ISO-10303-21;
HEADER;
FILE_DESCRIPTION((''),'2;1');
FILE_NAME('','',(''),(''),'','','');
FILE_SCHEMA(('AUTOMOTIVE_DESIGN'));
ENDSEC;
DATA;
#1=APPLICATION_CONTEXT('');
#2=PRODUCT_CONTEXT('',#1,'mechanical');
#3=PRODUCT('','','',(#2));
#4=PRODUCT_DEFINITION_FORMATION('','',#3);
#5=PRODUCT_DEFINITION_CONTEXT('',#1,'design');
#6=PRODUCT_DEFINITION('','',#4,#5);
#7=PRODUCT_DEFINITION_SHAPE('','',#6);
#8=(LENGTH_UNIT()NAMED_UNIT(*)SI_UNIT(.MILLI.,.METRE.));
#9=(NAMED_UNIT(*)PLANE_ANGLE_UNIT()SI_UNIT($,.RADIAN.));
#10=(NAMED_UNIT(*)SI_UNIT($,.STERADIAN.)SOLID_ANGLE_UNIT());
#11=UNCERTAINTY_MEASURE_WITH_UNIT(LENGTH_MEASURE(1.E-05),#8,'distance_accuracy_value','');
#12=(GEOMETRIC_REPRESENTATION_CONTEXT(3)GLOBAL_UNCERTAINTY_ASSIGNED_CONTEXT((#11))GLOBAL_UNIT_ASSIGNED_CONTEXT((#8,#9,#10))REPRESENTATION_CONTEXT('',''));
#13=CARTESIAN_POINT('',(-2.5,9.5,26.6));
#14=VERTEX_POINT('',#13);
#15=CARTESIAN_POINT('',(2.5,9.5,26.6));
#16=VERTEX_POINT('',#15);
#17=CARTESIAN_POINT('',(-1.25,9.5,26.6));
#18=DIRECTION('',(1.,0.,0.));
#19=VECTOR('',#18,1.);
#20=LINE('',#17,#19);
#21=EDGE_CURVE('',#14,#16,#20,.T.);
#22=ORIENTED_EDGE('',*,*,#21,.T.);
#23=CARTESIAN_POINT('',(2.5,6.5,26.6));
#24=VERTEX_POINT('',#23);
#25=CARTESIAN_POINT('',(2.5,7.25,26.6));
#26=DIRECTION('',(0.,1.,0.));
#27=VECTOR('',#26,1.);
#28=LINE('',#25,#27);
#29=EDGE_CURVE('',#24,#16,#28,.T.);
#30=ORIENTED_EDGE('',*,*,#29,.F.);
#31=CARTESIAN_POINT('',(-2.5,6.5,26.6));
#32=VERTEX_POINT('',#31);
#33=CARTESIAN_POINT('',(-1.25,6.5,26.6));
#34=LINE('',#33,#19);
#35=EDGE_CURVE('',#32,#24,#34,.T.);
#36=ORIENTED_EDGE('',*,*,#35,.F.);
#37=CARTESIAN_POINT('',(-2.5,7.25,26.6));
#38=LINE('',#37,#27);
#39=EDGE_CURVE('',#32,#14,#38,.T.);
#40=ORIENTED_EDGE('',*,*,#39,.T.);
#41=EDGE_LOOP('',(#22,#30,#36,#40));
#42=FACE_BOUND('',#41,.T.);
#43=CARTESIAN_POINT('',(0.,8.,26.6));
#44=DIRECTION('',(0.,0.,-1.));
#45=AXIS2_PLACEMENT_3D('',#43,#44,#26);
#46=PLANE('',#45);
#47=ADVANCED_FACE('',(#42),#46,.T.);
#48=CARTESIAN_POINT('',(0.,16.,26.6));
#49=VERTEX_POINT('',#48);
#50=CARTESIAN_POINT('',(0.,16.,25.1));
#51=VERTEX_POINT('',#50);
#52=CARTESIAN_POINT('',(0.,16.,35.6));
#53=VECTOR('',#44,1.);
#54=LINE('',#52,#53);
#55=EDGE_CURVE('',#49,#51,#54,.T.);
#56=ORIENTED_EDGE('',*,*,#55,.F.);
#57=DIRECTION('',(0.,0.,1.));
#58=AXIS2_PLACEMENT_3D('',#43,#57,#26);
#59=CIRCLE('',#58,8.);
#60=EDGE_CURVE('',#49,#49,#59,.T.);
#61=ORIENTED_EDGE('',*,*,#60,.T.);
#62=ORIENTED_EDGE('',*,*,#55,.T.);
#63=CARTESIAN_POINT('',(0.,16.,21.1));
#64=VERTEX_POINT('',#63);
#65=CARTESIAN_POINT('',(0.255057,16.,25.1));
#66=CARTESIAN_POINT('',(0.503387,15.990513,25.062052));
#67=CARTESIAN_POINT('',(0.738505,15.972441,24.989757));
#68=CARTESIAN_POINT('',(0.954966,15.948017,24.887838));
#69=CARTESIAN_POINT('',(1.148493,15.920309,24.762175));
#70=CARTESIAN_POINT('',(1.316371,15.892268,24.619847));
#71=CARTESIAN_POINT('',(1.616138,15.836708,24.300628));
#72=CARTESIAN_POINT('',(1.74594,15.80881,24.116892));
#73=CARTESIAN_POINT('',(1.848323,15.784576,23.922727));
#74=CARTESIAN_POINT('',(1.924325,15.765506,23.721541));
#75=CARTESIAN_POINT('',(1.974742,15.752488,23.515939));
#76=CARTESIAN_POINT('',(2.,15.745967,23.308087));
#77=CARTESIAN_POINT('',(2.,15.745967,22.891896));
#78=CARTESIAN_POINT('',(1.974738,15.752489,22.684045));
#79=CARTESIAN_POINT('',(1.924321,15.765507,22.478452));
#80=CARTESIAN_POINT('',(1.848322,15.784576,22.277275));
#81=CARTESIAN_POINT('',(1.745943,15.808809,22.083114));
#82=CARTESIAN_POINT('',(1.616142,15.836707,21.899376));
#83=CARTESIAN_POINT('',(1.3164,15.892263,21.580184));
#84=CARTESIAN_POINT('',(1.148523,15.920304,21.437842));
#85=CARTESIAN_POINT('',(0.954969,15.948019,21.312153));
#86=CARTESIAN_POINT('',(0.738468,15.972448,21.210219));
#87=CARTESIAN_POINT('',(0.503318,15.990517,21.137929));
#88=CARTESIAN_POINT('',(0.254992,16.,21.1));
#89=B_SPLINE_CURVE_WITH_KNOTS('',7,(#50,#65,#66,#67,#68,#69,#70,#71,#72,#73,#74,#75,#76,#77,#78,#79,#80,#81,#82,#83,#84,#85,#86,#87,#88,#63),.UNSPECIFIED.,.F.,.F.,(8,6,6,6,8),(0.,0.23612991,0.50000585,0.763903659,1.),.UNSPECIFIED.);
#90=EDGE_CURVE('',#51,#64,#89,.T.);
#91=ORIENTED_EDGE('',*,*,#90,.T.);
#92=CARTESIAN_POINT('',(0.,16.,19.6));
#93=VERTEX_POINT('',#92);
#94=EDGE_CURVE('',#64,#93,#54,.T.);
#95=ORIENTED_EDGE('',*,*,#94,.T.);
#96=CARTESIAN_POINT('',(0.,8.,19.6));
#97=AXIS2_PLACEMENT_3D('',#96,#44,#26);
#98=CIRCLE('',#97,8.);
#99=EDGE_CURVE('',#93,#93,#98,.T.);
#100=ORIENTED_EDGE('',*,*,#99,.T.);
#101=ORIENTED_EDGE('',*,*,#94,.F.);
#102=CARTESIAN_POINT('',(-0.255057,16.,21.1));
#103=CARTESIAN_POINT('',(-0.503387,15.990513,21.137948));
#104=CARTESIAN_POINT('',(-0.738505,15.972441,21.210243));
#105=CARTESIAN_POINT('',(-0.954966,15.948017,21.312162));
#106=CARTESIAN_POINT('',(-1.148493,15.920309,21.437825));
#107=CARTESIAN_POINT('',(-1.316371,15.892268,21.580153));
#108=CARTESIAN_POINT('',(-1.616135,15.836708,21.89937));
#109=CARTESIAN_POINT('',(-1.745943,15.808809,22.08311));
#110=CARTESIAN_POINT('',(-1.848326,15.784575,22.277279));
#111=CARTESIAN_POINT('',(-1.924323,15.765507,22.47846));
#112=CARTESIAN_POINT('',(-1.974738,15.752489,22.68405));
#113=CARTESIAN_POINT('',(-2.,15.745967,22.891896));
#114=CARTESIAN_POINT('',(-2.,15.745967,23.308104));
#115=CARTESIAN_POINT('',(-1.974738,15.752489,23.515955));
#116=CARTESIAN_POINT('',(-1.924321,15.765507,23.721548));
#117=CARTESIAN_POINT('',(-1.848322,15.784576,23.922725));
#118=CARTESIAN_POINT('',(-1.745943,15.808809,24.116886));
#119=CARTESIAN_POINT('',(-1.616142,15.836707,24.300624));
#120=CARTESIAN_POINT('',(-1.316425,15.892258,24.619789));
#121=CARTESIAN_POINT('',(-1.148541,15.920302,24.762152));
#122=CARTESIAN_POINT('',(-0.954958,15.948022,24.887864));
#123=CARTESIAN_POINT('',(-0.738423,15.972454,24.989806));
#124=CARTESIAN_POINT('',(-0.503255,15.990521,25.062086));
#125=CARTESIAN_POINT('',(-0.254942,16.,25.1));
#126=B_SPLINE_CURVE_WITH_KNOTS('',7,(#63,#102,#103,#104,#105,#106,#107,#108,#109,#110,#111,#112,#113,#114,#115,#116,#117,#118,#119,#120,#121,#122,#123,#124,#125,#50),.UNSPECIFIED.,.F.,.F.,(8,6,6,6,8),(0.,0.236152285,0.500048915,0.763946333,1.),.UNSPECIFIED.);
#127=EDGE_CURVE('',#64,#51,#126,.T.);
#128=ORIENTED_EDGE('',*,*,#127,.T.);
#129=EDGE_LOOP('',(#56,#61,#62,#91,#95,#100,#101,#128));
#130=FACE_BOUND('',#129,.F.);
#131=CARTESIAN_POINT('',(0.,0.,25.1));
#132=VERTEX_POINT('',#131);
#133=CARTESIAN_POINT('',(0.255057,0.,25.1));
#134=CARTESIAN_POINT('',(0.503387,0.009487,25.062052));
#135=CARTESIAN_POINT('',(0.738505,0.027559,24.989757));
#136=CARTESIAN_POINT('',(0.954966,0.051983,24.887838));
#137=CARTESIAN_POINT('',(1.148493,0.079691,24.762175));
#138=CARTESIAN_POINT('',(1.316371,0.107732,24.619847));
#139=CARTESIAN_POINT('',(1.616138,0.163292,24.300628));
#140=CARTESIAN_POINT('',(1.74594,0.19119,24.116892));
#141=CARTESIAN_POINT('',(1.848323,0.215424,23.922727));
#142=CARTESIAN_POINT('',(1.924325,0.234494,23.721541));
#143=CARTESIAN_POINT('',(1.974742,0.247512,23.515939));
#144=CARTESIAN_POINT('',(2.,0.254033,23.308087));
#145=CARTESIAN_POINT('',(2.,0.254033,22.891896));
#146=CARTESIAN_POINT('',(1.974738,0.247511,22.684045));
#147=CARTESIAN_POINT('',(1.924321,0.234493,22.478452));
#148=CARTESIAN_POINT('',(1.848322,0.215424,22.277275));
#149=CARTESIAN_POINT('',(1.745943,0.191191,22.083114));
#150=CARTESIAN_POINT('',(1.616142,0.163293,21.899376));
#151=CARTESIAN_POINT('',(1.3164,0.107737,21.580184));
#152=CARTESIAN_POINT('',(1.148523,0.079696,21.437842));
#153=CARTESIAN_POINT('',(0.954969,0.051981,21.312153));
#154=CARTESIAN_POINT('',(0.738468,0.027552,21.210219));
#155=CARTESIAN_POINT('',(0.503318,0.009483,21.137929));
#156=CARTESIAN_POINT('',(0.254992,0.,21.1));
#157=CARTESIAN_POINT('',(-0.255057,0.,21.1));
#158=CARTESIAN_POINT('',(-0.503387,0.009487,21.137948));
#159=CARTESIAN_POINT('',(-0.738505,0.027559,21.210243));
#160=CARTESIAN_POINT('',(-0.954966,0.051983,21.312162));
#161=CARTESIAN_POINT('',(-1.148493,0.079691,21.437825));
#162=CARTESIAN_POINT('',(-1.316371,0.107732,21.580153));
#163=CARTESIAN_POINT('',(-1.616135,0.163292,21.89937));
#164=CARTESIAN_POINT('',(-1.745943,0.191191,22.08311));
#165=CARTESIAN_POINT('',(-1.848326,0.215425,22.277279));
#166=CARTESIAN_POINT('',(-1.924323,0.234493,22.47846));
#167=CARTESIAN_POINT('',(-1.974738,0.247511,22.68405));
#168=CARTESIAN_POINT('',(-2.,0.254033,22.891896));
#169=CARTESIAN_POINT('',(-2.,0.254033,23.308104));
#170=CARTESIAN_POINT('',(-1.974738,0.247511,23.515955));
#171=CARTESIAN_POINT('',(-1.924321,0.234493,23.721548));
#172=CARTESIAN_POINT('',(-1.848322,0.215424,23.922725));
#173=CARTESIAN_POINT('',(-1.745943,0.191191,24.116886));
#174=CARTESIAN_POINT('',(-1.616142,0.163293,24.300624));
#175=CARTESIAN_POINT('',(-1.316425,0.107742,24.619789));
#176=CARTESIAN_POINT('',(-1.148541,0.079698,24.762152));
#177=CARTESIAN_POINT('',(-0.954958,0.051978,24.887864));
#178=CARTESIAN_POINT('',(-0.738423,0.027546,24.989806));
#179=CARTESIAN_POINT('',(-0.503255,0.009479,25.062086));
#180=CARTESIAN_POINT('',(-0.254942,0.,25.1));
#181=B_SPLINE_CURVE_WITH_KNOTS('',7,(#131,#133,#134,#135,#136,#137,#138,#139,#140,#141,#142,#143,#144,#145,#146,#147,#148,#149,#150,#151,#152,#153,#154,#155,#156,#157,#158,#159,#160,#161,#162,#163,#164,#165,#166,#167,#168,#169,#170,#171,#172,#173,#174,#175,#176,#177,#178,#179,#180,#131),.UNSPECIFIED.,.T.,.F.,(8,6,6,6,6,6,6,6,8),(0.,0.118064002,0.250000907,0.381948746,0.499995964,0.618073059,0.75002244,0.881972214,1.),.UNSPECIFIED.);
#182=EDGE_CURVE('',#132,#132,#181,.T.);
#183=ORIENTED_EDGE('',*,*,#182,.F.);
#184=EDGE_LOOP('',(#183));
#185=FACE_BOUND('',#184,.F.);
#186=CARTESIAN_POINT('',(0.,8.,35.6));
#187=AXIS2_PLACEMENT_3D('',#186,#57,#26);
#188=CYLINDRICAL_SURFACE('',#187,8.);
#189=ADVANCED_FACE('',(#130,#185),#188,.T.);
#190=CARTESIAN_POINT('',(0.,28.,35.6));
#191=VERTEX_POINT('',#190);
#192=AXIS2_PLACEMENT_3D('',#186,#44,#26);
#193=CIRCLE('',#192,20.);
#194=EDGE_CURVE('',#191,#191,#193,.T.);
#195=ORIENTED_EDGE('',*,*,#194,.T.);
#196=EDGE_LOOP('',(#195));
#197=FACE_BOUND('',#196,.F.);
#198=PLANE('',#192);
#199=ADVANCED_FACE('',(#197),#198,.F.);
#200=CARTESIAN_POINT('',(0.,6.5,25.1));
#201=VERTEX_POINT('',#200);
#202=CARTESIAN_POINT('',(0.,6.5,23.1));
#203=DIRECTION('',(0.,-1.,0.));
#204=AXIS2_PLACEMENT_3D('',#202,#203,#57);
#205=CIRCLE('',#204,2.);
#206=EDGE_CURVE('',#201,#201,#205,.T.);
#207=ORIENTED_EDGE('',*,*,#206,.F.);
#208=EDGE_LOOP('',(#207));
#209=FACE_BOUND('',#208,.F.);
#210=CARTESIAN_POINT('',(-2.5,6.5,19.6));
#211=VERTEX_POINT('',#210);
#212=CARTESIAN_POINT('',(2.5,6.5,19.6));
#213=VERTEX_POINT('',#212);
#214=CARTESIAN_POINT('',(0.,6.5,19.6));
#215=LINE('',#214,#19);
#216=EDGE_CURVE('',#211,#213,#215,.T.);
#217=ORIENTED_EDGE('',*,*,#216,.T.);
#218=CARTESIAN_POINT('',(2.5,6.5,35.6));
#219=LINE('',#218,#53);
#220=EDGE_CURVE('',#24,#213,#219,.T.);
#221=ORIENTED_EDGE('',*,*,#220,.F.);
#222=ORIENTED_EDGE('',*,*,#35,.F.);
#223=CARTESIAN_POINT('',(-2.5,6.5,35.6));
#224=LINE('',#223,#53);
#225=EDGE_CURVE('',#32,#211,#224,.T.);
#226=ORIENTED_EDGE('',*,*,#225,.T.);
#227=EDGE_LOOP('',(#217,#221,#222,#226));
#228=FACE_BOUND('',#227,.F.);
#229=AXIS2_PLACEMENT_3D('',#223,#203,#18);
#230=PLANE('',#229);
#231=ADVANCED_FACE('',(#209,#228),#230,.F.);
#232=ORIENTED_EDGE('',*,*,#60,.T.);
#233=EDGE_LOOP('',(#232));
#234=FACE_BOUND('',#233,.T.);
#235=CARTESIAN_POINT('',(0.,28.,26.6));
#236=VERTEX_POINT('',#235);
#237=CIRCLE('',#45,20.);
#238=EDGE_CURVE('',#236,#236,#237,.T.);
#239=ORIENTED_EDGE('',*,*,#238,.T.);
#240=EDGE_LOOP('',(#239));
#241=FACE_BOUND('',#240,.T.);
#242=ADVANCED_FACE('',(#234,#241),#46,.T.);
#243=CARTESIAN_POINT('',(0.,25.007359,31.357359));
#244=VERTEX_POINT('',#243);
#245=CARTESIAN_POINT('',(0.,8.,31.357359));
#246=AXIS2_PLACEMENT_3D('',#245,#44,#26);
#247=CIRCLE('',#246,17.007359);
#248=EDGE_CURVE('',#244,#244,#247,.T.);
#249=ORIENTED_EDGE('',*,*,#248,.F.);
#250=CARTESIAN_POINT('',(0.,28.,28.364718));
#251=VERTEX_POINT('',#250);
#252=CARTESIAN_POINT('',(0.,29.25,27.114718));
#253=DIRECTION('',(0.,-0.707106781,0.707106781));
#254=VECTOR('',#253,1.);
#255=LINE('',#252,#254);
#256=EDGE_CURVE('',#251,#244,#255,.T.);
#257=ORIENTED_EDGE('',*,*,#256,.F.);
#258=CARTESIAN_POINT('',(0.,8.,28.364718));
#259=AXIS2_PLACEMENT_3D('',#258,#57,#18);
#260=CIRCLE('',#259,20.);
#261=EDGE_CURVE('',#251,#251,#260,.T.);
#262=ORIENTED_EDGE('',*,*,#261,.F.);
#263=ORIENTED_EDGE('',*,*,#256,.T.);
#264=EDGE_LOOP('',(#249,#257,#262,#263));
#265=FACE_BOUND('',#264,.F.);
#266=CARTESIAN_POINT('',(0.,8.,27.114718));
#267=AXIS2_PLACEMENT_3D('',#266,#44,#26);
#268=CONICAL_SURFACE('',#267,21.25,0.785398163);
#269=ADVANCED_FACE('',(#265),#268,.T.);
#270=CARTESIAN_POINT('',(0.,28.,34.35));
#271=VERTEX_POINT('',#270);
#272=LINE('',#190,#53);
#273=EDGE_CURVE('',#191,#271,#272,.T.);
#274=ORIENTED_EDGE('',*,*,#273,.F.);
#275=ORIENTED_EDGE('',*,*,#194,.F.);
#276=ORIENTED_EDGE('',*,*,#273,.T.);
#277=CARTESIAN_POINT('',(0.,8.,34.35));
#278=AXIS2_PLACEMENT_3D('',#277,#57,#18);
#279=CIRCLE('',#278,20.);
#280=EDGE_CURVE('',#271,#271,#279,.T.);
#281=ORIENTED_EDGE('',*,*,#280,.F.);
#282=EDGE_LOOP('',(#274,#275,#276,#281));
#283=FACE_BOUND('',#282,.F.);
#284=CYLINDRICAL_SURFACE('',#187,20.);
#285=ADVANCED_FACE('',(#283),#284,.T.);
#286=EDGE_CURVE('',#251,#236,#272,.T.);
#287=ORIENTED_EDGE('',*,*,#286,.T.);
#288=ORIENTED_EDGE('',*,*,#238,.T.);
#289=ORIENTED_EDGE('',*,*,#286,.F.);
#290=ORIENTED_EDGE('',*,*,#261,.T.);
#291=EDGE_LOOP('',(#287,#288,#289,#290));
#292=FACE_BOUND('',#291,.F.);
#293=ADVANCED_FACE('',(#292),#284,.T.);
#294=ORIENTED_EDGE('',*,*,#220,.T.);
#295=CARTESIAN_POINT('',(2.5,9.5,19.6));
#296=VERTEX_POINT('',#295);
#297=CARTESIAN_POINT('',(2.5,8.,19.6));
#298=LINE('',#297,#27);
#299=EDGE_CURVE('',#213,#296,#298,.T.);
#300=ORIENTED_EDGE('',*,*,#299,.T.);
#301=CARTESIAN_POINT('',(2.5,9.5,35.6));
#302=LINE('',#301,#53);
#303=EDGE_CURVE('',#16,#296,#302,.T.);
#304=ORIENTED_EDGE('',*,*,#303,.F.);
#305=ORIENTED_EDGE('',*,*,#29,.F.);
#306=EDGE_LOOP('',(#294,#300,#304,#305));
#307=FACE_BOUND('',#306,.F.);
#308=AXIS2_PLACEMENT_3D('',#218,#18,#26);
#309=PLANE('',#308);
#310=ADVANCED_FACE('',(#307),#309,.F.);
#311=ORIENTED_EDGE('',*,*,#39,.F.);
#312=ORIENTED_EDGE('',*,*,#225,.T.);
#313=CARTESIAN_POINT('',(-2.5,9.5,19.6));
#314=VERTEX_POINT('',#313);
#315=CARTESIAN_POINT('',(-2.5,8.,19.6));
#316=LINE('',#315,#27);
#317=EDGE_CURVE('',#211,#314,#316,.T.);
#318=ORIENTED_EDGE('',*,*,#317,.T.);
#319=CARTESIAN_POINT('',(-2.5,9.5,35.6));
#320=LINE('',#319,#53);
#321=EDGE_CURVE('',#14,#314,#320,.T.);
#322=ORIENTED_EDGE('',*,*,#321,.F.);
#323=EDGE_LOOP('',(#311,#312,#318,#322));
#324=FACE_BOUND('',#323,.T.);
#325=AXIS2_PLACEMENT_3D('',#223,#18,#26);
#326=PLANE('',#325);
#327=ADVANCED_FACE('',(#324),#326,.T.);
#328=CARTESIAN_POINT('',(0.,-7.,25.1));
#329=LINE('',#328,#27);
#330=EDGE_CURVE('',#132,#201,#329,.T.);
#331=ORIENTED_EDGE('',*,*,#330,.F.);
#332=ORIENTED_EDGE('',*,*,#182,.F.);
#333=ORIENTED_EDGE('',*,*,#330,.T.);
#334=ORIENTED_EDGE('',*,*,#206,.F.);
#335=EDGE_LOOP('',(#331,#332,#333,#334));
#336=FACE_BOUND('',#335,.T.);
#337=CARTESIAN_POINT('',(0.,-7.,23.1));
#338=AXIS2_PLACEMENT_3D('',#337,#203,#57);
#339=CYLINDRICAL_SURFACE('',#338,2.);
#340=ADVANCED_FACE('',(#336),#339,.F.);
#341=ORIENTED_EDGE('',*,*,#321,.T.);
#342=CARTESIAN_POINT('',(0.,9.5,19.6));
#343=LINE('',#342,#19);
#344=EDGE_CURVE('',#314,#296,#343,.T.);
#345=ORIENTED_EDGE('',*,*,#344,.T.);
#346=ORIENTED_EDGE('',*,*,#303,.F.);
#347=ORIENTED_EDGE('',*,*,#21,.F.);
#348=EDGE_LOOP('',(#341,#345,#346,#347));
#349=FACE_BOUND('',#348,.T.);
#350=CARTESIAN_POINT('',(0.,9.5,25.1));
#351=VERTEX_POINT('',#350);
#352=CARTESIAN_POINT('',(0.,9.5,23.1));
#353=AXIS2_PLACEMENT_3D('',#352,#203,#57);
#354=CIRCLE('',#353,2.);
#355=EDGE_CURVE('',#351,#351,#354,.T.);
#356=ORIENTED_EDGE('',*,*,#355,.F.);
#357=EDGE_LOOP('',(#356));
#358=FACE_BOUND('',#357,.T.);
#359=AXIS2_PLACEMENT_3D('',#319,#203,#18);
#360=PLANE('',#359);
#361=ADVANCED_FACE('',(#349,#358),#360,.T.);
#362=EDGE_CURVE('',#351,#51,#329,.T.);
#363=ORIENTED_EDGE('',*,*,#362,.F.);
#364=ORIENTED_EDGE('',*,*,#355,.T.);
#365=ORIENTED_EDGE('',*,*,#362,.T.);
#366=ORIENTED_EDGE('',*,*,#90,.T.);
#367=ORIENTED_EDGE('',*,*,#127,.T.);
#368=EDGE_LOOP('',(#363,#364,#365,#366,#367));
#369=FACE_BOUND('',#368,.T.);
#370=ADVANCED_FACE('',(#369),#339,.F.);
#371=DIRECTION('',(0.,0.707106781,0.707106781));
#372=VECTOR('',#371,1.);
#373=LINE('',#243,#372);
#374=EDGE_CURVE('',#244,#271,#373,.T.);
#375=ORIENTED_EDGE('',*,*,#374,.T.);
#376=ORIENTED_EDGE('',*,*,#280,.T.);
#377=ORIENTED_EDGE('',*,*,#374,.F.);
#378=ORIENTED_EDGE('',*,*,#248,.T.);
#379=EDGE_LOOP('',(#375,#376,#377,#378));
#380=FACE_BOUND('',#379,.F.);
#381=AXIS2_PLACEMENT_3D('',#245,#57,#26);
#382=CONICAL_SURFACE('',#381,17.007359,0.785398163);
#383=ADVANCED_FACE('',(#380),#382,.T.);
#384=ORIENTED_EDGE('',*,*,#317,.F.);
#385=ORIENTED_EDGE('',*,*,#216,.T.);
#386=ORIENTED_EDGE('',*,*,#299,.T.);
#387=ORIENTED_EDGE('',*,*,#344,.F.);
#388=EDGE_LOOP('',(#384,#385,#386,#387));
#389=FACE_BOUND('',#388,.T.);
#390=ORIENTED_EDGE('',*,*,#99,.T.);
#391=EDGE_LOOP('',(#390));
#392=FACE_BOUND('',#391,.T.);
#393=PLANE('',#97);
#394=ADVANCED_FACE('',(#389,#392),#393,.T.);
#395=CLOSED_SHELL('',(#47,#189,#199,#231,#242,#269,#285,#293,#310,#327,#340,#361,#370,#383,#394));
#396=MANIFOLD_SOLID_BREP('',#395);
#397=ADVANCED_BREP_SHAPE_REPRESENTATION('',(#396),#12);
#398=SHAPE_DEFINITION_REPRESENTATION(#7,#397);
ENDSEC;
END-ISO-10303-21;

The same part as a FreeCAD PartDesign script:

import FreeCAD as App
import Part
import Sketcher

V = App.Vector
Q = App.Units.Quantity


def add_polygon(sketch, points):
    """Adds a closed chain of lines whose ends are joined by coincident constraints."""
    first, n = sketch.GeometryCount, len(points)
    for a, b in zip(points, points[1:] + points[:1]):
        sketch.addGeometry(Part.LineSegment(App.Vector(*a, 0), App.Vector(*b, 0)), False)
    for i in range(n):
        sketch.addConstraint(Sketcher.Constraint("Coincident", first + i, 2, first + (i + 1) % n, 1))

doc = App.newDocument("Part")
body = doc.addObject("PartDesign::Body", "Body")

# Sketch on XY plane
sketch1 = doc.addObject("Sketcher::SketchObject", "Sketch")
body.addObject(sketch1)
sketch1.AttachmentSupport = (doc.XY_Plane, [""])
sketch1.MapMode = "FlatFace"
sketch1.addGeometry(Part.Circle(V(0, 0, 0), V(0, 0, 1), 2), False)
sketch1.addConstraint([
    Sketcher.Constraint("Coincident", 0, 3, -1, 1),
    Sketcher.Constraint("Diameter", 0, Q("4 mm")),
])
pad1 = doc.addObject("PartDesign::Pad", "Pad")
body.addObject(pad1)
pad1.Profile = sketch1
pad1.Length = 30
body2 = doc.addObject("PartDesign::Body", "Body001")
doc.recompute()

body.Placement = App.Placement(V(0, 0, 0), App.Rotation(V(0, 1, 0), 90))
boolean = doc.addObject("PartDesign::Boolean", "Boolean")
body2.addObject(boolean)
boolean.Type = "Fuse"
boolean.addObjects([body])
body3 = doc.addObject("PartDesign::Body", "Body002")
doc.recompute()

body2.Placement = App.Placement(V(-15, 0, 12.5), App.Rotation(V(0, 0, 1), 0))
boolean2 = doc.addObject("PartDesign::Boolean", "Boolean001")
body3.addObject(boolean2)
boolean2.Type = "Fuse"
boolean2.addObjects([body2])
body4 = doc.addObject("PartDesign::Body", "Body003")

# Sketch on XY plane
sketch2 = doc.addObject("Sketcher::SketchObject", "Sketch001")
body4.addObject(sketch2)
sketch2.AttachmentSupport = (doc.getObject("XY_Plane003"), [""])
sketch2.MapMode = "FlatFace"
add_polygon(sketch2, [(17, 4), (21, 0), (25, 4), (21, 8)])  # lines 0-3
sketch2.addConstraint([
    Sketcher.Constraint("PointOnObject", 0, 2, -1),
    Sketcher.Constraint("Perpendicular", 0, 1),
    Sketcher.Constraint("Perpendicular", 1, 2),
    Sketcher.Constraint("Perpendicular", 2, 3),
    Sketcher.Constraint("Horizontal", 1, 2, 3, 2),
    Sketcher.Constraint("Vertical", 0, 2, 2, 2),
    Sketcher.Constraint("Distance", 0, Q("6 mm")),
    Sketcher.Constraint("DistanceX", -1, 1, 0, 2, Q("21.25 mm")),
])
revolution = doc.addObject("PartDesign::Revolution", "Revolution")
body4.addObject(revolution)
revolution.Profile = sketch2
revolution.ReferenceAxis = (sketch2, ["V_Axis"])
revolution.Angle = 360
body5 = doc.addObject("PartDesign::Body", "Body004")
doc.recompute()

body4.Placement = App.Placement(V(0, 0, 0), App.Rotation(V(1, 0, 0), 90))
boolean3 = doc.addObject("PartDesign::Boolean", "Boolean002")
body5.addObject(boolean3)
boolean3.Type = "Fuse"
boolean3.addObjects([body4])
body6 = doc.addObject("PartDesign::Body", "Body005")

# Sketch on XY plane
sketch3 = doc.addObject("Sketcher::SketchObject", "Sketch002")
body6.addObject(sketch3)
sketch3.AttachmentSupport = (doc.getObject("XY_Plane005"), [""])
sketch3.MapMode = "FlatFace"
sketch3.addGeometry(Part.Circle(V(0, 0, 0), V(0, 0, 1), 20), False)
sketch3.addConstraint([
    Sketcher.Constraint("Coincident", 0, 3, -1, 1),
    Sketcher.Constraint("Diameter", 0, Q("40 mm")),
])
pad2 = doc.addObject("PartDesign::Pad", "Pad001")
body6.addObject(pad2)
pad2.Profile = sketch3
pad2.Length = 9
body7 = doc.addObject("PartDesign::Body", "Body006")

# Sketch on XY plane
sketch4 = doc.addObject("Sketcher::SketchObject", "Sketch003")
body7.addObject(sketch4)
sketch4.AttachmentSupport = (doc.getObject("XY_Plane006"), [""])
sketch4.MapMode = "FlatFace"
add_polygon(sketch4, [(-1.5, 2.5), (-1.5, -2.5), (1.5, -2.5), (1.5, 2.5)])  # lines 0-3
sketch4.addConstraint([
    Sketcher.Constraint("Vertical", 0),
    Sketcher.Constraint("Horizontal", 1),
    Sketcher.Constraint("Vertical", 2),
    Sketcher.Constraint("Horizontal", 3),
    Sketcher.Constraint("Symmetric", 0, 2, 2, 2, -1, 1),
    Sketcher.Constraint("DistanceX", 1, 1, 1, 2, Q("3 mm")),
    Sketcher.Constraint("DistanceY", 0, 2, 0, 1, Q("5 mm")),
])
pad3 = doc.addObject("PartDesign::Pad", "Pad002")
body7.addObject(pad3)
pad3.Profile = sketch4
pad3.Length = 16
body8 = doc.addObject("PartDesign::Body", "Body007")

# Sketch on XY plane
sketch5 = doc.addObject("Sketcher::SketchObject", "Sketch004")
body8.addObject(sketch5)
sketch5.AttachmentSupport = (doc.getObject("XY_Plane007"), [""])
sketch5.MapMode = "FlatFace"
sketch5.addGeometry(Part.Circle(V(0, 0, 0), V(0, 0, 1), 8), False)
sketch5.addConstraint([
    Sketcher.Constraint("Coincident", 0, 3, -1, 1),
    Sketcher.Constraint("Diameter", 0, Q("16 mm")),
])
pad4 = doc.addObject("PartDesign::Pad", "Pad003")
body8.addObject(pad4)
pad4.Profile = sketch5
pad4.Length = 16
doc.recompute()

boolean4 = doc.addObject("PartDesign::Boolean", "Boolean003")
body8.addObject(boolean4)
boolean4.Type = "Cut"
boolean4.addObjects([body7])
doc.recompute()

boolean5 = doc.addObject("PartDesign::Boolean", "Boolean004")
body8.addObject(boolean5)
boolean5.Type = "Fuse"
boolean5.addObjects([body6])
doc.recompute()

boolean6 = doc.addObject("PartDesign::Boolean", "Boolean005")
body8.addObject(boolean6)
boolean6.Type = "Cut"
boolean6.addObjects([body5])
doc.recompute()

boolean7 = doc.addObject("PartDesign::Boolean", "Boolean006")
body8.addObject(boolean7)
boolean7.Type = "Cut"
boolean7.addObjects([body3])
body9 = doc.addObject("PartDesign::Body", "Body008")
doc.recompute()

body8.Placement = App.Placement(V(0, 0, 0), App.Rotation(V(1, 0, 0), 180))
boolean8 = doc.addObject("PartDesign::Boolean", "Boolean007")
body9.addObject(boolean8)
boolean8.Type = "Fuse"
boolean8.addObjects([body8])
body10 = doc.addObject("PartDesign::Body", "Body009")
doc.recompute()

body9.Placement = App.Placement(V(0, 8, 35.6), App.Rotation(V(0, 0, 1), 90))
boolean9 = doc.addObject("PartDesign::Boolean", "Boolean008")
body10.addObject(boolean9)
boolean9.Type = "Fuse"
boolean9.addObjects([body9])

doc.recompute()
